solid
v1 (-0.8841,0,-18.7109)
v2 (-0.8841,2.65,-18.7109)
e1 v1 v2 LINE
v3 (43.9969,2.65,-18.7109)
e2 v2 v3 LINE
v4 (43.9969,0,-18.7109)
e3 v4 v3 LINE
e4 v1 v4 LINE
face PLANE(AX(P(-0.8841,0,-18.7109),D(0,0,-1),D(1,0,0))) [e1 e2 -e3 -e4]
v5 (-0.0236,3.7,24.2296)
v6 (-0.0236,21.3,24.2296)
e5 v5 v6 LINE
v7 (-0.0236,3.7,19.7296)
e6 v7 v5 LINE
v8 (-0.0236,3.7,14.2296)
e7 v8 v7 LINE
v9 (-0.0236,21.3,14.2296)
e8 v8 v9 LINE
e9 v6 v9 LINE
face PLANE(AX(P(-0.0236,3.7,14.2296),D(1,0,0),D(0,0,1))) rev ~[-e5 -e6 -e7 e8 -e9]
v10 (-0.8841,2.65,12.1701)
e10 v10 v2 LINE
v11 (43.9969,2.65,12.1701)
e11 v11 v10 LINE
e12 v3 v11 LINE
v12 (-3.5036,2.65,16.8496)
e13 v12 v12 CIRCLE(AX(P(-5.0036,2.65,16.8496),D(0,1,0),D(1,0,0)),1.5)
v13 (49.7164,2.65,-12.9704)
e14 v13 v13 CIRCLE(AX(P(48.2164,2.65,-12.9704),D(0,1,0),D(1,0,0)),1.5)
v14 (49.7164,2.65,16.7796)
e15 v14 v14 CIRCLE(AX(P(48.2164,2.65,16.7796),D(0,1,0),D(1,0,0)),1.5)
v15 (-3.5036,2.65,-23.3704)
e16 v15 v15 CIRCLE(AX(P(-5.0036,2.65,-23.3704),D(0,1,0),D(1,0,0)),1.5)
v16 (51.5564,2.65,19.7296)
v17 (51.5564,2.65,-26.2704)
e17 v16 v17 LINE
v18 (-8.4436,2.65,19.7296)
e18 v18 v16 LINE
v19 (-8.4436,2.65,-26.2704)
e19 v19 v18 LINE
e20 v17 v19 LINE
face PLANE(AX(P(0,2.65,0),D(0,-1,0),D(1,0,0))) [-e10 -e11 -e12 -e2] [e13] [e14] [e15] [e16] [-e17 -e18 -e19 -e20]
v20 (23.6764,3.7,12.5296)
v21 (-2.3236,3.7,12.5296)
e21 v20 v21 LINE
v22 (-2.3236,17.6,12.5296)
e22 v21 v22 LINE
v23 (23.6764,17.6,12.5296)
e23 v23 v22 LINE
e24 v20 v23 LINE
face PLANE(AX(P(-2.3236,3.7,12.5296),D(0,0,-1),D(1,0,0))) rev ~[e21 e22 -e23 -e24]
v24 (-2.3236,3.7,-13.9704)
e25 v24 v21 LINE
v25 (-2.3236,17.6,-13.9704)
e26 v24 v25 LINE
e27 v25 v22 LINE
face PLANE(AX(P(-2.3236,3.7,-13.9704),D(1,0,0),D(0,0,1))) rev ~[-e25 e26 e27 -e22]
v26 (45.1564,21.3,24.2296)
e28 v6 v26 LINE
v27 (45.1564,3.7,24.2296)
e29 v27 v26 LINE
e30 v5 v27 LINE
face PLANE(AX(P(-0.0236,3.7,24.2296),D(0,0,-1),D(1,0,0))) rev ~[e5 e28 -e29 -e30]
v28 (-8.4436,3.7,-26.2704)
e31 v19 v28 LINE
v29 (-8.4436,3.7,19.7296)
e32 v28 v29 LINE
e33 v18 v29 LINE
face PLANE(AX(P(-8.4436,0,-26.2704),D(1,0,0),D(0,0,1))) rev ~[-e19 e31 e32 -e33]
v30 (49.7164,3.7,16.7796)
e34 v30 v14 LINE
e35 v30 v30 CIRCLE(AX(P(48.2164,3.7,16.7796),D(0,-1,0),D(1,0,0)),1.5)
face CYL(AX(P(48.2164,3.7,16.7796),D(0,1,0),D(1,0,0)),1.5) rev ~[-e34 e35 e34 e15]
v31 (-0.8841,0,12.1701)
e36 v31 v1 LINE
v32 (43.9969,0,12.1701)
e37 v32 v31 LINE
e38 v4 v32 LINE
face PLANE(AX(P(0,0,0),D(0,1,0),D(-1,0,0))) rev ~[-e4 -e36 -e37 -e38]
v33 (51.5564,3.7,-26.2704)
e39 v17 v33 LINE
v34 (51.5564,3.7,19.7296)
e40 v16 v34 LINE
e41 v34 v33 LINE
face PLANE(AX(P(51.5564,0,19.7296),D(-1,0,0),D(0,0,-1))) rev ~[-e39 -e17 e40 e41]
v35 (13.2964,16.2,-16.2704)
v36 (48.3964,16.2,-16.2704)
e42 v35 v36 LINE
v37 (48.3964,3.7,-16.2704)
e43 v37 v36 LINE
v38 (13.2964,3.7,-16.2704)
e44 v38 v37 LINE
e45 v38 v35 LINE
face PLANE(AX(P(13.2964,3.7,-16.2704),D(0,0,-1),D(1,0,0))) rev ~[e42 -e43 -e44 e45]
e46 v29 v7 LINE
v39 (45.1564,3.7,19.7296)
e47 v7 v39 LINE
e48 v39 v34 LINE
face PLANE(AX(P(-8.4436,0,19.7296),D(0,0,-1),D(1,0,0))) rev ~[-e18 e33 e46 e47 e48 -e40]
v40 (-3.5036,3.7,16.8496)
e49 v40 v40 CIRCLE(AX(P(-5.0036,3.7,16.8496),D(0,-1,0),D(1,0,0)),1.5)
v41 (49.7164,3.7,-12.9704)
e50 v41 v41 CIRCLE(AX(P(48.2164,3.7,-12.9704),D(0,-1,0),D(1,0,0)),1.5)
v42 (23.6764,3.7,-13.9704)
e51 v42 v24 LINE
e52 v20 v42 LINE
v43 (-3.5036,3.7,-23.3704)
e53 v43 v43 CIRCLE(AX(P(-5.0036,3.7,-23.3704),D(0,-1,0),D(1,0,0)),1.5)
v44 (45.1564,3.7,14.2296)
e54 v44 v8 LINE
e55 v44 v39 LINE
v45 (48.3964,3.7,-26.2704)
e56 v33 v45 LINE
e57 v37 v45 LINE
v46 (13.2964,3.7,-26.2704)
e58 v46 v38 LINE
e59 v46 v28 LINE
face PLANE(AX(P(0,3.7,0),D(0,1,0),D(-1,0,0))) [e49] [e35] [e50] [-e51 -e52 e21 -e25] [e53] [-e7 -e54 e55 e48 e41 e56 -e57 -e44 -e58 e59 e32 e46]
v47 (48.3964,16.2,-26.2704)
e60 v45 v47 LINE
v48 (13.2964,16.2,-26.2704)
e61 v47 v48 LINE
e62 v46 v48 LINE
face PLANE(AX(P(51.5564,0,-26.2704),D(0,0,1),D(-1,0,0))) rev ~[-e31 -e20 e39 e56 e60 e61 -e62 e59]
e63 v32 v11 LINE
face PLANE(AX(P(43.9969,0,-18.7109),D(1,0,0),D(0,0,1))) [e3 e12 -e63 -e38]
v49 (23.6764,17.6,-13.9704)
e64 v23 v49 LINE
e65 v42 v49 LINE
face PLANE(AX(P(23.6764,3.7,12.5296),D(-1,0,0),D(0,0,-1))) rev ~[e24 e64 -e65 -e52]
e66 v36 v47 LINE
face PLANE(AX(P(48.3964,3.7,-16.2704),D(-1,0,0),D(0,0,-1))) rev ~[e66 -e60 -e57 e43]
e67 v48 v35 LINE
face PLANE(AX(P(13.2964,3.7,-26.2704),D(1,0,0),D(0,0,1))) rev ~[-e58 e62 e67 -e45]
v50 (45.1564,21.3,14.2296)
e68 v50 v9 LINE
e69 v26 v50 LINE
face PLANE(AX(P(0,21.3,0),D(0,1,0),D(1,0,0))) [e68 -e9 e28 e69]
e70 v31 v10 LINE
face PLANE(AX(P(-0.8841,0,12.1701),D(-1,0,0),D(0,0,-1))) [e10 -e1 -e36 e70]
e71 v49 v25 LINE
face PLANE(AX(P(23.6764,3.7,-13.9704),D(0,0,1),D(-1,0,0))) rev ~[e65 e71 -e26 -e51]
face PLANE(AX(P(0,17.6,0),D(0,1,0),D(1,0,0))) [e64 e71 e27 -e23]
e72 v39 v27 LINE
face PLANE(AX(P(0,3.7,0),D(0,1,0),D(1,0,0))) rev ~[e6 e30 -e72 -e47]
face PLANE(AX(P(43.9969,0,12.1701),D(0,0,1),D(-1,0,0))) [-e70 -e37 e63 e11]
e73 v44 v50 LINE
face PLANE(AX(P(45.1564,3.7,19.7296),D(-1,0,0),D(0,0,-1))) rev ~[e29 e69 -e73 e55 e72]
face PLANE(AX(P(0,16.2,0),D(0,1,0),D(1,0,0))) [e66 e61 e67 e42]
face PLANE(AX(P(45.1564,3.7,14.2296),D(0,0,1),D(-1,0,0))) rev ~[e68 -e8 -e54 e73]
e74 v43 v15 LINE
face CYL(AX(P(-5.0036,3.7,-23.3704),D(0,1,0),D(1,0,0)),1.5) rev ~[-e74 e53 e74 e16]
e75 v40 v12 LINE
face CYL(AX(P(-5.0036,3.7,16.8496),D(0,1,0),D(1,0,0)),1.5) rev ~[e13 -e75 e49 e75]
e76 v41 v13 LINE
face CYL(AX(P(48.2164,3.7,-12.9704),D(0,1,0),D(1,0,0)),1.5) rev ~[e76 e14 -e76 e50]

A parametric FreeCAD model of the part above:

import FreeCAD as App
import Part
import Sketcher

V = App.Vector

doc = App.newDocument("Part")
params = doc.addObject("Spreadsheet::Sheet", "Params")
for row, (alias, value) in enumerate([
    ("sketch1_width", "60 mm"),
    ("sketch1_height", "46 mm"),
    ("pad1_length", "3.7 mm"),
    ("sketch2_height", "10 mm"),
    ("sketch2_width", "45.18 mm"),
    ("pad2_length", "17.6 mm"),
    ("sketch3_width", "26 mm"),
    ("sketch3_height", "26.5 mm"),
    ("pad3_length", "13.9 mm"),
    ("sketch4_diameter", "3 mm"),
    ("pocket1_length", "13.9 mm"),
    ("sketch5_width", "60 mm"),
    ("sketch5_height", "46 mm"),
    ("pocket2_length", "2.65 mm"),
    ("sketch6_height", "10 mm"),
    ("sketch6_width", "35.1 mm"),
    ("pad4_length", "12.5 mm"),
], start=1):
    params.set(f"A{row}", alias)
    params.set(f"B{row}", "=" + value)
    params.setAlias(f"B{row}", alias)

body = doc.addObject("PartDesign::Body", "Body")

sketch1 = body.newObject("Sketcher::SketchObject", "Sketch")
sketch1.AttachmentSupport = (doc.getObject("XZ_Plane"), [""])
sketch1.MapMode = "FlatFace"
sketch1.addGeometry([
    Part.LineSegment(V(-8, -26, 0), V(-8, 20, 0)),
    Part.LineSegment(V(-8, 20, 0), V(52, 20, 0)),
    Part.LineSegment(V(52, 20, 0), V(52, -26, 0)),
    Part.LineSegment(V(52, -26, 0), V(-8, -26, 0)),
], False)
sketch1.addConstraint([
    Sketcher.Constraint("Coincident", 0, 2, 1, 1),
    Sketcher.Constraint("Coincident", 1, 2, 2, 1),
    Sketcher.Constraint("Coincident", 2, 2, 3, 1),
    Sketcher.Constraint("Coincident", 3, 2, 0, 1),
    Sketcher.Constraint("Vertical", 0),
    Sketcher.Constraint("Horizontal", 1),
    Sketcher.Constraint("Vertical", 2),
    Sketcher.Constraint("Horizontal", 3),
    Sketcher.Constraint("DistanceX", 1, 1, 1, 2, 60.0),
    Sketcher.Constraint("DistanceY", 0, 1, 0, 2, 46.0),
    Sketcher.Constraint("DistanceX", 0, 2, -1, 1, 8.4436),
    Sketcher.Constraint("DistanceY", -1, 1, 0, 2, 19.7296),
])
sketch1.setExpression("Constraints[8]", "Params.sketch1_width")
sketch1.setExpression("Constraints[9]", "Params.sketch1_height")
pad1 = body.newObject("PartDesign::Pad", "Pad")
pad1.Profile = sketch1
pad1.setExpression("Length", "Params.pad1_length")
pad1.Reversed = True

sketch2 = body.newObject("Sketcher::SketchObject", "Sketch001")
sketch2.AttachmentSupport = (doc.getObject("XZ_Plane"), [""])
sketch2.MapMode = "FlatFace"
sketch2.AttachmentOffset = App.Placement(V(0, 0, -3.7), App.Rotation())
sketch2.addGeometry([
    Part.LineSegment(V(0, 14, 0), V(0, 24, 0)),
    Part.LineSegment(V(0, 24, 0), V(45, 24, 0)),
    Part.LineSegment(V(45, 24, 0), V(45, 14, 0)),
    Part.LineSegment(V(45, 14, 0), V(0, 14, 0)),
], False)
sketch2.addConstraint([
    Sketcher.Constraint("Coincident", 0, 2, 1, 1),
    Sketcher.Constraint("Coincident", 1, 2, 2, 1),
    Sketcher.Constraint("Coincident", 2, 2, 3, 1),
    Sketcher.Constraint("Coincident", 3, 2, 0, 1),
    Sketcher.Constraint("Vertical", 0),
    Sketcher.Constraint("Horizontal", 1),
    Sketcher.Constraint("Vertical", 2),
    Sketcher.Constraint("Horizontal", 3),
    Sketcher.Constraint("DistanceY", 0, 1, 0, 2, 10.0),
    Sketcher.Constraint("DistanceX", 1, 1, 1, 2, 45.18),
    Sketcher.Constraint("DistanceX", 0, 2, -1, 1, 0.0236),
    Sketcher.Constraint("DistanceY", -1, 1, 0, 2, 24.2296),
])
sketch2.setExpression("Constraints[8]", "Params.sketch2_height")
sketch2.setExpression("Constraints[9]", "Params.sketch2_width")
pad2 = body.newObject("PartDesign::Pad", "Pad001")
pad2.Profile = sketch2
pad2.setExpression("Length", "Params.pad2_length")
pad2.Reversed = True

sketch3 = body.newObject("Sketcher::SketchObject", "Sketch002")
sketch3.AttachmentSupport = (doc.getObject("XZ_Plane"), [""])
sketch3.MapMode = "FlatFace"
sketch3.AttachmentOffset = App.Placement(V(0, 0, -3.7), App.Rotation())
sketch3.addGeometry([
    Part.LineSegment(V(24, -14, 0), V(-2, -14, 0)),
    Part.LineSegment(V(-2, -14, 0), V(-2, 13, 0)),
    Part.LineSegment(V(-2, 13, 0), V(24, 13, 0)),
    Part.LineSegment(V(24, 13, 0), V(24, -14, 0)),
], False)
sketch3.addConstraint([
    Sketcher.Constraint("Coincident", 0, 2, 1, 1),
    Sketcher.Constraint("Coincident", 1, 2, 2, 1),
    Sketcher.Constraint("Coincident", 2, 2, 3, 1),
    Sketcher.Constraint("Coincident", 3, 2, 0, 1),
    Sketcher.Constraint("Horizontal", 0),
    Sketcher.Constraint("Vertical", 1),
    Sketcher.Constraint("Horizontal", 2),
    Sketcher.Constraint("Vertical", 3),
    Sketcher.Constraint("DistanceX", 0, 2, 0, 1, 26.0),
    Sketcher.Constraint("DistanceY", 1, 1, 1, 2, 26.5),
    Sketcher.Constraint("DistanceX", 0, 2, -1, 1, 2.3236),
    Sketcher.Constraint("DistanceY", 0, 2, -1, 1, 13.9704),
])
sketch3.setExpression("Constraints[8]", "Params.sketch3_width")
sketch3.setExpression("Constraints[9]", "Params.sketch3_height")
pad3 = body.newObject("PartDesign::Pad", "Pad002")
pad3.Profile = sketch3
pad3.setExpression("Length", "Params.pad3_length")
pad3.Reversed = True

sketch4 = body.newObject("Sketcher::SketchObject", "Sketch003")
sketch4.AttachmentSupport = (doc.getObject("XZ_Plane"), [""])
sketch4.MapMode = "FlatFace"
sketch4.AttachmentOffset = App.Placement(V(0, 0, -3.7), App.Rotation())
sketch4.addGeometry([
    Part.Circle(V(48.2, 16.8, 0), V(0, 0, 1), 1.5),
    Part.Circle(V(48.2, -13, 0), V(0, 0, 1), 1.5),
    Part.Circle(V(-5, 16.8, 0), V(0, 0, 1), 1.5),
    Part.Circle(V(-5, -23.4, 0), V(0, 0, 1), 1.5),
], False)
sketch4.addConstraint([
    Sketcher.Constraint("Equal", 0, 1),
    Sketcher.Constraint("Equal", 1, 2),
    Sketcher.Constraint("Equal", 2, 3),
    Sketcher.Constraint("Vertical", 0, 3, 1, 3),
    Sketcher.Constraint("Vertical", 2, 3, 3, 3),
    Sketcher.Constraint("Diameter", 0, 3.0),
    Sketcher.Constraint("DistanceY", 3, 3, 1, 3, 10.4),
    Sketcher.Constraint("DistanceY", 1, 3, 0, 3, 29.75),
    Sketcher.Constraint("DistanceX", 2, 3, 0, 3, 53.22),
    Sketcher.Constraint("DistanceY", 0, 3, 2, 3, 0.07),
    Sketcher.Constraint("DistanceX", -1, 1, 0, 3, 48.2164),
    Sketcher.Constraint("DistanceY", -1, 1, 0, 3, 16.7796),
])
sketch4.setExpression("Constraints[5]", "Params.sketch4_diameter")
pocket1 = body.newObject("PartDesign::Pocket", "Pocket")
pocket1.Profile = sketch4
pocket1.setExpression("Length", "Params.pocket1_length")
pocket1.Reversed = True

sketch5 = body.newObject("Sketcher::SketchObject", "Sketch004")
sketch5.AttachmentSupport = (doc.getObject("XZ_Plane"), [""])
sketch5.MapMode = "FlatFace"
sketch5.addGeometry([
    Part.LineSegment(V(52, -26, 0), V(52, 20, 0)),
    Part.LineSegment(V(52, 20, 0), V(-8, 20, 0)),
    Part.LineSegment(V(-8, 20, 0), V(-8, -26, 0)),
    Part.LineSegment(V(-8, -26, 0), V(52, -26, 0)),
    Part.LineSegment(V(44, 12, 0), V(44, -19, 0)),
    Part.LineSegment(V(44, -19, 0), V(-1, -19, 0)),
    Part.LineSegment(V(-1, -19, 0), V(-1, 12, 0)),
    Part.LineSegment(V(-1, 12, 0), V(44, 12, 0)),
], False)
sketch5.addConstraint([
    Sketcher.Constraint("Coincident", 0, 2, 1, 1),
    Sketcher.Constraint("Coincident", 1, 2, 2, 1),
    Sketcher.Constraint("Coincident", 2, 2, 3, 1),
    Sketcher.Constraint("Coincident", 3, 2, 0, 1),
    Sketcher.Constraint("Coincident", 4, 2, 5, 1),
    Sketcher.Constraint("Coincident", 5, 2, 6, 1),
    Sketcher.Constraint("Coincident", 6, 2, 7, 1),
    Sketcher.Constraint("Coincident", 7, 2, 4, 1),
    Sketcher.Constraint("Vertical", 0),
    Sketcher.Constraint("Horizontal", 1),
    Sketcher.Constraint("Vertical", 2),
    Sketcher.Constraint("Horizontal", 3),
    Sketcher.Constraint("Vertical", 4),
    Sketcher.Constraint("Horizontal", 5),
    Sketcher.Constraint("Vertical", 6),
    Sketcher.Constraint("Horizontal", 7),
    Sketcher.Constraint("DistanceX", 1, 2, 1, 1, 60.0),
    Sketcher.Constraint("DistanceY", 0, 1, 0, 2, 46.0),
    Sketcher.Constraint("DistanceX", 5, 2, 5, 1, 44.881),
    Sketcher.Constraint("DistanceY", 4, 2, 4, 1, 30.881),
    Sketcher.Constraint("DistanceY", -1, 1, 6, 2, 12.17),
    Sketcher.Constraint("DistanceX", -1, 1, 4, 2, 43.997),
    Sketcher.Constraint("DistanceX", -1, 1, 0, 2, 51.5564),
    Sketcher.Constraint("DistanceY", -1, 1, 0, 2, 19.7296),
])
sketch5.setExpression("Constraints[16]", "Params.sketch5_width")
sketch5.setExpression("Constraints[17]", "Params.sketch5_height")
pocket2 = body.newObject("PartDesign::Pocket", "Pocket001")
pocket2.Profile = sketch5
pocket2.setExpression("Length", "Params.pocket2_length")

sketch6 = body.newObject("Sketcher::SketchObject", "Sketch005")
sketch6.AttachmentSupport = (doc.getObject("XZ_Plane"), [""])
sketch6.MapMode = "FlatFace"
sketch6.AttachmentOffset = App.Placement(V(0, 0, -3.7), App.Rotation())
sketch6.addGeometry([
    Part.LineSegment(V(13, -16, 0), V(48, -16, 0)),
    Part.LineSegment(V(48, -16, 0), V(48, -26, 0)),
    Part.LineSegment(V(48, -26, 0), V(13, -26, 0)),
    Part.LineSegment(V(13, -26, 0), V(13, -16, 0)),
], False)
sketch6.addConstraint([
    Sketcher.Constraint("Coincident", 0, 2, 1, 1),
    Sketcher.Constraint("Coincident", 1, 2, 2, 1),
    Sketcher.Constraint("Coincident", 2, 2, 3, 1),
    Sketcher.Constraint("Coincident", 3, 2, 0, 1),
    Sketcher.Constraint("Horizontal", 0),
    Sketcher.Constraint("Vertical", 1),
    Sketcher.Constraint("Horizontal", 2),
    Sketcher.Constraint("Vertical", 3),
    Sketcher.Constraint("DistanceY", 1, 2, 1, 1, 10.0),
    Sketcher.Constraint("DistanceX", 0, 1, 0, 2, 35.1),
    Sketcher.Constraint("DistanceX", -1, 1, 0, 2, 48.3964),
    Sketcher.Constraint("DistanceY", 0, 2, -1, 1, 16.2704),
])
sketch6.setExpression("Constraints[8]", "Params.sketch6_height")
sketch6.setExpression("Constraints[9]", "Params.sketch6_width")
pad4 = body.newObject("PartDesign::Pad", "Pad003")
pad4.Profile = sketch6
pad4.setExpression("Length", "Params.pad4_length")
pad4.Reversed = True

doc.recompute()
